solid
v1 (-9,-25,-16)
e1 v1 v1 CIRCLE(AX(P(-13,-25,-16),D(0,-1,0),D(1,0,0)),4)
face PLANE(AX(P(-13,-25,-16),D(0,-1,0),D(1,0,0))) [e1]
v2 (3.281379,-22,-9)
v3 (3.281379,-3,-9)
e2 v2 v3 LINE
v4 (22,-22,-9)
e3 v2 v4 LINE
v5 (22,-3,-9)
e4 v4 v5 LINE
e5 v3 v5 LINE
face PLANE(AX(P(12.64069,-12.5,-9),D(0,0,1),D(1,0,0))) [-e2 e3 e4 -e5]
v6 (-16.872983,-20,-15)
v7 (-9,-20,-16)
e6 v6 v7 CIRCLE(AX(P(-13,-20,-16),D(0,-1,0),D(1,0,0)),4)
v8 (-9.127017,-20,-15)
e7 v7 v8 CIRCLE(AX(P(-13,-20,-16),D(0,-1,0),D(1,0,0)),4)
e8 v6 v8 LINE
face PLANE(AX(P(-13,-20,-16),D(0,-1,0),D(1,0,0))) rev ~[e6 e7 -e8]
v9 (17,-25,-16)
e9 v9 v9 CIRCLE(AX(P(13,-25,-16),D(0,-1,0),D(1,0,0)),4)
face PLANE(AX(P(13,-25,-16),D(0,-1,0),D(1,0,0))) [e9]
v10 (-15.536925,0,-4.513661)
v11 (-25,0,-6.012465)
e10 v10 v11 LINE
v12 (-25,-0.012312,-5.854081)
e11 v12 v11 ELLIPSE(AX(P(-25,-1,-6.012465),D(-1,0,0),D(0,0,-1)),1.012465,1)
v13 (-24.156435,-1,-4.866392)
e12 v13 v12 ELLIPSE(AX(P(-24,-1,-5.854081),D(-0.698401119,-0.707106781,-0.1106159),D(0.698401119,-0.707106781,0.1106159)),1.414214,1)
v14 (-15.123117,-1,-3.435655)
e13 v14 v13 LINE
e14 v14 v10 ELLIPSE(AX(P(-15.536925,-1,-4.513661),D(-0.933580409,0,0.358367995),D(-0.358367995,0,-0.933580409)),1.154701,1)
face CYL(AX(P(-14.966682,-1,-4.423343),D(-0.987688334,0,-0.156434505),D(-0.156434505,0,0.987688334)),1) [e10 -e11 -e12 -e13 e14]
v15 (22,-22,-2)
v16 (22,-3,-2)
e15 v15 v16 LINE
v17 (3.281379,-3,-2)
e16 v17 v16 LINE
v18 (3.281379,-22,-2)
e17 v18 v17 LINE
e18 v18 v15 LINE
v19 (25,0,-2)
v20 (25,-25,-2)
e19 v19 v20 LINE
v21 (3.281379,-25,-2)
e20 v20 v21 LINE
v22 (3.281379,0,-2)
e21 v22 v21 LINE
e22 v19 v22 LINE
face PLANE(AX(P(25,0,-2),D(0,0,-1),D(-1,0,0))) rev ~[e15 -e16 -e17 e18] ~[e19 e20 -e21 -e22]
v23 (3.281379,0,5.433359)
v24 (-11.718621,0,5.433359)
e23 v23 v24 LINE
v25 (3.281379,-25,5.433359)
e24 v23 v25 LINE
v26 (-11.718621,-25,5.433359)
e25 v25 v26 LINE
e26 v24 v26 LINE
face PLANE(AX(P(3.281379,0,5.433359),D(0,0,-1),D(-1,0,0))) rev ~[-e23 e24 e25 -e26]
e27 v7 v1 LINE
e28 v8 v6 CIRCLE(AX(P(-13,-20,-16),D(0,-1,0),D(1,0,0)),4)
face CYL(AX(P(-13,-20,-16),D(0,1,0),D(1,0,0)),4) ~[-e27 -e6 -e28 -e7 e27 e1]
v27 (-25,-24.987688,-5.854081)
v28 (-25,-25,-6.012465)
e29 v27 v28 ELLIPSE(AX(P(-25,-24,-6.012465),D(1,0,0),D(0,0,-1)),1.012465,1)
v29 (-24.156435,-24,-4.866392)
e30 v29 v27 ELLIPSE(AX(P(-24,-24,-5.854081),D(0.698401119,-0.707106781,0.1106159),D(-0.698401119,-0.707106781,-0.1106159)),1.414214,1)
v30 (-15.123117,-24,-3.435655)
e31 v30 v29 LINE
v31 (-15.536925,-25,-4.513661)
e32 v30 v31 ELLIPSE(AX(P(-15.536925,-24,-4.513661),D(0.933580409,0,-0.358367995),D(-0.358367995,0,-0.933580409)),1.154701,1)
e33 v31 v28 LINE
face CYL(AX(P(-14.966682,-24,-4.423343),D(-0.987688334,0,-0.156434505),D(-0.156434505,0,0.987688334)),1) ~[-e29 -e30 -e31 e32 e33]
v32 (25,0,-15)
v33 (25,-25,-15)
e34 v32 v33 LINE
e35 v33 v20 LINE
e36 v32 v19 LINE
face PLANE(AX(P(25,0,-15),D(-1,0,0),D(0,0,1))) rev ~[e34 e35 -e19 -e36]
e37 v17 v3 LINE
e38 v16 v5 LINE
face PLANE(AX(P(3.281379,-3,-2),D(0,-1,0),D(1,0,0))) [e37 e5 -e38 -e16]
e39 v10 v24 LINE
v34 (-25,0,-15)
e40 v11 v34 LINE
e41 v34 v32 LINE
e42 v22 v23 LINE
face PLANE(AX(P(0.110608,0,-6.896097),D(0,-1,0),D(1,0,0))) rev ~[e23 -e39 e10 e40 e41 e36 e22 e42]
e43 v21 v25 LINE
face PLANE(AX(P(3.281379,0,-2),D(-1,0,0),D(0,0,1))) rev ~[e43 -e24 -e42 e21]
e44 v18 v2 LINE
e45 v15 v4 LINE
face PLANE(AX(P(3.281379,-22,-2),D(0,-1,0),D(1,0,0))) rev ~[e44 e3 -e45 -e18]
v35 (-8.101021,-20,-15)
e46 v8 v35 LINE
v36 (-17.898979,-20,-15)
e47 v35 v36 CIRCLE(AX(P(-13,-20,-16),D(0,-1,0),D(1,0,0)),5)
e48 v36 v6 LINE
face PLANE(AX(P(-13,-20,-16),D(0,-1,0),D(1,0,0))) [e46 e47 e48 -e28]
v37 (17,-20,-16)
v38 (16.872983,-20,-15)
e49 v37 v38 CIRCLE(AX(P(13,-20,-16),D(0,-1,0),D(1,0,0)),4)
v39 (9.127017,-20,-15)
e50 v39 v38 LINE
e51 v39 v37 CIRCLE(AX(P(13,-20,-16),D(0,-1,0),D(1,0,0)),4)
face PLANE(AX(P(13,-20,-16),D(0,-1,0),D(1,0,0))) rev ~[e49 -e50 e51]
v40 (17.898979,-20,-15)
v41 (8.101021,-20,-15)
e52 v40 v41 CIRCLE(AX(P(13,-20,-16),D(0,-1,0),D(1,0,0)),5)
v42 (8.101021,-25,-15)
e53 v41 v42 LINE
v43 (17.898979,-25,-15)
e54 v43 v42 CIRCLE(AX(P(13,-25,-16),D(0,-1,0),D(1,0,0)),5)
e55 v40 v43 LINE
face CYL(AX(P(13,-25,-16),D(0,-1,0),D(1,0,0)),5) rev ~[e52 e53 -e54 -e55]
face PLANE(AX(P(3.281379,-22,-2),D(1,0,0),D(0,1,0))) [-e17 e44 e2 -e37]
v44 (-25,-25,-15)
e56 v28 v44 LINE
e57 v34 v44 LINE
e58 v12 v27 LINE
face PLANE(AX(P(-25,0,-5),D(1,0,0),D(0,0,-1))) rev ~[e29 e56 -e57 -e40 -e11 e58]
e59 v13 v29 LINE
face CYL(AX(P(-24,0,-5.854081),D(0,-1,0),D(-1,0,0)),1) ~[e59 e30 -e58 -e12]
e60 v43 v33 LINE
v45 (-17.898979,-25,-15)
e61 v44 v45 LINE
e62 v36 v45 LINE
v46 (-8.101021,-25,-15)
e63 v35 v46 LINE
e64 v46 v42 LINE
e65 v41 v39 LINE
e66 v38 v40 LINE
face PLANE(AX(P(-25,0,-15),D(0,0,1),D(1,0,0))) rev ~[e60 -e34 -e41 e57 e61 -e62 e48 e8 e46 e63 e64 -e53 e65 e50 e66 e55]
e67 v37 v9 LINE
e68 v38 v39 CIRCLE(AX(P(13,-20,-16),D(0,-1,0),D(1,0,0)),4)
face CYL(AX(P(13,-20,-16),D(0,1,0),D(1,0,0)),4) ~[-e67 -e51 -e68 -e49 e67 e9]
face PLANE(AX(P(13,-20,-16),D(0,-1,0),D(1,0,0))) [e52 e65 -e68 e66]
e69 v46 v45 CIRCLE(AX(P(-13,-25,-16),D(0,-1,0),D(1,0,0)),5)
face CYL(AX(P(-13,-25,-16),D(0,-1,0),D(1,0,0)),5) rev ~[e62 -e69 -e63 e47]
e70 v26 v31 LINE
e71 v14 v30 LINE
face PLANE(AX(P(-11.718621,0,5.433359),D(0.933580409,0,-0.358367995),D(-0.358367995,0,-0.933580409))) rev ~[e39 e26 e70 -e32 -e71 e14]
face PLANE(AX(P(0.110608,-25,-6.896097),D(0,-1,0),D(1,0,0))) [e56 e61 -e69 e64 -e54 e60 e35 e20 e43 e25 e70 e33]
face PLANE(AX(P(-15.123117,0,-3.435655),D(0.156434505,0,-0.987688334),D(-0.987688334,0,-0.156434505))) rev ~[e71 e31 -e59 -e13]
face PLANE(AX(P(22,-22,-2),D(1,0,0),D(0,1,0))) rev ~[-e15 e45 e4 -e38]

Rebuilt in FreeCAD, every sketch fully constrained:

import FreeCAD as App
import Part
import Sketcher

V = App.Vector
Q = App.Units.Quantity


def edges_at(feature, points):
    """Names of the edges that pass closest to the given points."""
    edges = feature.Shape.Edges
    near = lambda p: min(range(len(edges)), key=lambda i: edges[i].distToShape(Part.Vertex(*p))[0])
    return sorted({f"Edge{near(p) + 1}" for p in points})

doc = App.newDocument("Part")
body = doc.addObject("PartDesign::Body", "Body")

# Sketch on XZ plane
sketch1 = doc.addObject("Sketcher::SketchObject", "Sketch")
body.addObject(sketch1)
sketch1.AttachmentSupport = (doc.XZ_Plane, [""])
sketch1.MapMode = "FlatFace"
sketch1.addGeometry([
    Part.LineSegment(V(-25, -5, 0), V(-25, -15, 0)),  # 0
    Part.LineSegment(V(-25, -15, 0), V(25, -15, 0)),  # 1
    Part.LineSegment(V(25, -15, 0), V(25, -2, 0)),  # 2
    Part.LineSegment(V(25, -2, 0), V(3, -2, 0)),  # 3
    Part.LineSegment(V(3, -2, 0), V(3, 5, 0)),  # 4
    Part.LineSegment(V(3, 5, 0), V(-12, 5, 0)),  # 5
    Part.LineSegment(V(-12, 5, 0), V(-15, -3, 0)),  # 6
    Part.LineSegment(V(-15, -3, 0), V(-25, -5, 0)),  # 7
], False)
sketch1.addConstraint([
    Sketcher.Constraint("Coincident", 0, 2, 1, 1),
    Sketcher.Constraint("Coincident", 1, 2, 2, 1),
    Sketcher.Constraint("Coincident", 2, 2, 3, 1),
    Sketcher.Constraint("Coincident", 3, 2, 4, 1),
    Sketcher.Constraint("Coincident", 4, 2, 5, 1),
    Sketcher.Constraint("Coincident", 5, 2, 6, 1),
    Sketcher.Constraint("Coincident", 6, 2, 7, 1),
    Sketcher.Constraint("Coincident", 7, 2, 0, 1),
    Sketcher.Constraint("Vertical", 0),
    Sketcher.Constraint("Horizontal", 1),
    Sketcher.Constraint("Vertical", 2),
    Sketcher.Constraint("Horizontal", 3),
    Sketcher.Constraint("Vertical", 4),
    Sketcher.Constraint("Horizontal", 5),
    Sketcher.Constraint("DistanceX", 1, 1, 1, 2, 50.0),
    Sketcher.Constraint("DistanceX", 5, 2, 5, 1, 15.0),
    Sketcher.Constraint("DistanceY", 0, 2, 0, 1, 10.0),
    Sketcher.Constraint("DistanceY", 2, 1, 2, 2, 13.0),
    Sketcher.Constraint("Angle", 6, Q("-111.000003 deg")),
    Sketcher.Constraint("Angle", 7, Q("-170.999998 deg")),
    Sketcher.Constraint("Distance", 7, 10.0),
    Sketcher.Constraint("DistanceX", 0, 2, -1, 1, 25.0),
    Sketcher.Constraint("DistanceY", 0, 2, -1, 1, 15.0),
    Sketcher.Constraint("Distance", 6, 9.5),
])
pad1 = doc.addObject("PartDesign::Pad", "Pad")
body.addObject(pad1)
pad1.Profile = sketch1
pad1.Length = 25

# Sketch on XY plane
sketch2 = doc.addObject("Sketcher::SketchObject", "Sketch001")
body.addObject(sketch2)
sketch2.AttachmentSupport = (doc.XY_Plane, [""])
sketch2.MapMode = "FlatFace"
sketch2.AttachmentOffset = App.Placement(V(0, 0, -2), App.Rotation())
sketch2.addGeometry([
    Part.LineSegment(V(3, -3, 0), V(3, -22, 0)),
    Part.LineSegment(V(3, -22, 0), V(22, -22, 0)),
    Part.LineSegment(V(22, -22, 0), V(22, -3, 0)),
    Part.LineSegment(V(22, -3, 0), V(3, -3, 0)),
], False)
sketch2.addConstraint([
    Sketcher.Constraint("Coincident", 0, 2, 1, 1),
    Sketcher.Constraint("Coincident", 1, 2, 2, 1),
    Sketcher.Constraint("Coincident", 2, 2, 3, 1),
    Sketcher.Constraint("Coincident", 3, 2, 0, 1),
    Sketcher.Constraint("Vertical", 0),
    Sketcher.Constraint("Horizontal", 1),
    Sketcher.Constraint("Vertical", 2),
    Sketcher.Constraint("Horizontal", 3),
    Sketcher.Constraint("DistanceY", 0, 2, 0, 1, 19.0),
    Sketcher.Constraint("DistanceY", 0, 2, -1, 1, 22.0),
    Sketcher.Constraint("DistanceX", -1, 1, 1, 2, 22.0),
    Sketcher.Constraint("DistanceX", 1, 1, 1, 2, 18.718621),
])
pocket1 = doc.addObject("PartDesign::Pocket", "Pocket")
body.addObject(pocket1)
pocket1.Profile = sketch2
pocket1.Length = 7
doc.recompute()

fillet = doc.addObject("PartDesign::Fillet", "Fillet")
body.addObject(fillet)
fillet.Base = (pocket1, edges_at(pocket1, [(-20.062, 0, -4.218), (-20.062, -25, -4.218), (-25, -12.5, -5)]))
fillet.Radius = 1

# Sketch on XZ plane
sketch3 = doc.addObject("Sketcher::SketchObject", "Sketch002")
body.addObject(sketch3)
sketch3.AttachmentSupport = (doc.XZ_Plane, [""])
sketch3.MapMode = "FlatFace"
sketch3.AttachmentOffset = App.Placement(V(0, 0, 25), App.Rotation())
sketch3.addGeometry([
    Part.Circle(V(-13, -16, 0), V(0, 0, 1), 5),
    Part.Circle(V(13, -16, 0), V(0, 0, 1), 5),
], False)
sketch3.addConstraint([
    Sketcher.Constraint("Equal", 0, 1),
    Sketcher.Constraint("Symmetric", 0, 3, 1, 3, -2),
    Sketcher.Constraint("Diameter", 0, 10.0),
    Sketcher.Constraint("DistanceX", 0, 3, -1, 1, 13.0),
    Sketcher.Constraint("DistanceY", 0, 3, -1, 1, 16.0),
])
pocket2 = doc.addObject("PartDesign::Pocket", "Pocket001")
body.addObject(pocket2)
pocket2.Profile = sketch3
pocket2.Length = 5

# Sketch on XZ plane
sketch4 = doc.addObject("Sketcher::SketchObject", "Sketch003")
body.addObject(sketch4)
sketch4.AttachmentSupport = (doc.XZ_Plane, [""])
sketch4.MapMode = "FlatFace"
sketch4.AttachmentOffset = App.Placement(V(0, 0, 20), App.Rotation())
sketch4.addGeometry([
    Part.Circle(V(-13, -16, 0), V(0, 0, 1), 4),
    Part.Circle(V(13, -16, 0), V(0, 0, 1), 4),
], False)
sketch4.addConstraint([
    Sketcher.Constraint("Equal", 0, 1),
    Sketcher.Constraint("Symmetric", 0, 3, 1, 3, -2),
    Sketcher.Constraint("Diameter", 0, 8.0),
    Sketcher.Constraint("DistanceX", 0, 3, -1, 1, 13.0),
    Sketcher.Constraint("DistanceY", 0, 3, -1, 1, 16.0),
])
pad2 = doc.addObject("PartDesign::Pad", "Pad001")
body.addObject(pad2)
pad2.Profile = sketch4
pad2.Length = 5

doc.recompute()
